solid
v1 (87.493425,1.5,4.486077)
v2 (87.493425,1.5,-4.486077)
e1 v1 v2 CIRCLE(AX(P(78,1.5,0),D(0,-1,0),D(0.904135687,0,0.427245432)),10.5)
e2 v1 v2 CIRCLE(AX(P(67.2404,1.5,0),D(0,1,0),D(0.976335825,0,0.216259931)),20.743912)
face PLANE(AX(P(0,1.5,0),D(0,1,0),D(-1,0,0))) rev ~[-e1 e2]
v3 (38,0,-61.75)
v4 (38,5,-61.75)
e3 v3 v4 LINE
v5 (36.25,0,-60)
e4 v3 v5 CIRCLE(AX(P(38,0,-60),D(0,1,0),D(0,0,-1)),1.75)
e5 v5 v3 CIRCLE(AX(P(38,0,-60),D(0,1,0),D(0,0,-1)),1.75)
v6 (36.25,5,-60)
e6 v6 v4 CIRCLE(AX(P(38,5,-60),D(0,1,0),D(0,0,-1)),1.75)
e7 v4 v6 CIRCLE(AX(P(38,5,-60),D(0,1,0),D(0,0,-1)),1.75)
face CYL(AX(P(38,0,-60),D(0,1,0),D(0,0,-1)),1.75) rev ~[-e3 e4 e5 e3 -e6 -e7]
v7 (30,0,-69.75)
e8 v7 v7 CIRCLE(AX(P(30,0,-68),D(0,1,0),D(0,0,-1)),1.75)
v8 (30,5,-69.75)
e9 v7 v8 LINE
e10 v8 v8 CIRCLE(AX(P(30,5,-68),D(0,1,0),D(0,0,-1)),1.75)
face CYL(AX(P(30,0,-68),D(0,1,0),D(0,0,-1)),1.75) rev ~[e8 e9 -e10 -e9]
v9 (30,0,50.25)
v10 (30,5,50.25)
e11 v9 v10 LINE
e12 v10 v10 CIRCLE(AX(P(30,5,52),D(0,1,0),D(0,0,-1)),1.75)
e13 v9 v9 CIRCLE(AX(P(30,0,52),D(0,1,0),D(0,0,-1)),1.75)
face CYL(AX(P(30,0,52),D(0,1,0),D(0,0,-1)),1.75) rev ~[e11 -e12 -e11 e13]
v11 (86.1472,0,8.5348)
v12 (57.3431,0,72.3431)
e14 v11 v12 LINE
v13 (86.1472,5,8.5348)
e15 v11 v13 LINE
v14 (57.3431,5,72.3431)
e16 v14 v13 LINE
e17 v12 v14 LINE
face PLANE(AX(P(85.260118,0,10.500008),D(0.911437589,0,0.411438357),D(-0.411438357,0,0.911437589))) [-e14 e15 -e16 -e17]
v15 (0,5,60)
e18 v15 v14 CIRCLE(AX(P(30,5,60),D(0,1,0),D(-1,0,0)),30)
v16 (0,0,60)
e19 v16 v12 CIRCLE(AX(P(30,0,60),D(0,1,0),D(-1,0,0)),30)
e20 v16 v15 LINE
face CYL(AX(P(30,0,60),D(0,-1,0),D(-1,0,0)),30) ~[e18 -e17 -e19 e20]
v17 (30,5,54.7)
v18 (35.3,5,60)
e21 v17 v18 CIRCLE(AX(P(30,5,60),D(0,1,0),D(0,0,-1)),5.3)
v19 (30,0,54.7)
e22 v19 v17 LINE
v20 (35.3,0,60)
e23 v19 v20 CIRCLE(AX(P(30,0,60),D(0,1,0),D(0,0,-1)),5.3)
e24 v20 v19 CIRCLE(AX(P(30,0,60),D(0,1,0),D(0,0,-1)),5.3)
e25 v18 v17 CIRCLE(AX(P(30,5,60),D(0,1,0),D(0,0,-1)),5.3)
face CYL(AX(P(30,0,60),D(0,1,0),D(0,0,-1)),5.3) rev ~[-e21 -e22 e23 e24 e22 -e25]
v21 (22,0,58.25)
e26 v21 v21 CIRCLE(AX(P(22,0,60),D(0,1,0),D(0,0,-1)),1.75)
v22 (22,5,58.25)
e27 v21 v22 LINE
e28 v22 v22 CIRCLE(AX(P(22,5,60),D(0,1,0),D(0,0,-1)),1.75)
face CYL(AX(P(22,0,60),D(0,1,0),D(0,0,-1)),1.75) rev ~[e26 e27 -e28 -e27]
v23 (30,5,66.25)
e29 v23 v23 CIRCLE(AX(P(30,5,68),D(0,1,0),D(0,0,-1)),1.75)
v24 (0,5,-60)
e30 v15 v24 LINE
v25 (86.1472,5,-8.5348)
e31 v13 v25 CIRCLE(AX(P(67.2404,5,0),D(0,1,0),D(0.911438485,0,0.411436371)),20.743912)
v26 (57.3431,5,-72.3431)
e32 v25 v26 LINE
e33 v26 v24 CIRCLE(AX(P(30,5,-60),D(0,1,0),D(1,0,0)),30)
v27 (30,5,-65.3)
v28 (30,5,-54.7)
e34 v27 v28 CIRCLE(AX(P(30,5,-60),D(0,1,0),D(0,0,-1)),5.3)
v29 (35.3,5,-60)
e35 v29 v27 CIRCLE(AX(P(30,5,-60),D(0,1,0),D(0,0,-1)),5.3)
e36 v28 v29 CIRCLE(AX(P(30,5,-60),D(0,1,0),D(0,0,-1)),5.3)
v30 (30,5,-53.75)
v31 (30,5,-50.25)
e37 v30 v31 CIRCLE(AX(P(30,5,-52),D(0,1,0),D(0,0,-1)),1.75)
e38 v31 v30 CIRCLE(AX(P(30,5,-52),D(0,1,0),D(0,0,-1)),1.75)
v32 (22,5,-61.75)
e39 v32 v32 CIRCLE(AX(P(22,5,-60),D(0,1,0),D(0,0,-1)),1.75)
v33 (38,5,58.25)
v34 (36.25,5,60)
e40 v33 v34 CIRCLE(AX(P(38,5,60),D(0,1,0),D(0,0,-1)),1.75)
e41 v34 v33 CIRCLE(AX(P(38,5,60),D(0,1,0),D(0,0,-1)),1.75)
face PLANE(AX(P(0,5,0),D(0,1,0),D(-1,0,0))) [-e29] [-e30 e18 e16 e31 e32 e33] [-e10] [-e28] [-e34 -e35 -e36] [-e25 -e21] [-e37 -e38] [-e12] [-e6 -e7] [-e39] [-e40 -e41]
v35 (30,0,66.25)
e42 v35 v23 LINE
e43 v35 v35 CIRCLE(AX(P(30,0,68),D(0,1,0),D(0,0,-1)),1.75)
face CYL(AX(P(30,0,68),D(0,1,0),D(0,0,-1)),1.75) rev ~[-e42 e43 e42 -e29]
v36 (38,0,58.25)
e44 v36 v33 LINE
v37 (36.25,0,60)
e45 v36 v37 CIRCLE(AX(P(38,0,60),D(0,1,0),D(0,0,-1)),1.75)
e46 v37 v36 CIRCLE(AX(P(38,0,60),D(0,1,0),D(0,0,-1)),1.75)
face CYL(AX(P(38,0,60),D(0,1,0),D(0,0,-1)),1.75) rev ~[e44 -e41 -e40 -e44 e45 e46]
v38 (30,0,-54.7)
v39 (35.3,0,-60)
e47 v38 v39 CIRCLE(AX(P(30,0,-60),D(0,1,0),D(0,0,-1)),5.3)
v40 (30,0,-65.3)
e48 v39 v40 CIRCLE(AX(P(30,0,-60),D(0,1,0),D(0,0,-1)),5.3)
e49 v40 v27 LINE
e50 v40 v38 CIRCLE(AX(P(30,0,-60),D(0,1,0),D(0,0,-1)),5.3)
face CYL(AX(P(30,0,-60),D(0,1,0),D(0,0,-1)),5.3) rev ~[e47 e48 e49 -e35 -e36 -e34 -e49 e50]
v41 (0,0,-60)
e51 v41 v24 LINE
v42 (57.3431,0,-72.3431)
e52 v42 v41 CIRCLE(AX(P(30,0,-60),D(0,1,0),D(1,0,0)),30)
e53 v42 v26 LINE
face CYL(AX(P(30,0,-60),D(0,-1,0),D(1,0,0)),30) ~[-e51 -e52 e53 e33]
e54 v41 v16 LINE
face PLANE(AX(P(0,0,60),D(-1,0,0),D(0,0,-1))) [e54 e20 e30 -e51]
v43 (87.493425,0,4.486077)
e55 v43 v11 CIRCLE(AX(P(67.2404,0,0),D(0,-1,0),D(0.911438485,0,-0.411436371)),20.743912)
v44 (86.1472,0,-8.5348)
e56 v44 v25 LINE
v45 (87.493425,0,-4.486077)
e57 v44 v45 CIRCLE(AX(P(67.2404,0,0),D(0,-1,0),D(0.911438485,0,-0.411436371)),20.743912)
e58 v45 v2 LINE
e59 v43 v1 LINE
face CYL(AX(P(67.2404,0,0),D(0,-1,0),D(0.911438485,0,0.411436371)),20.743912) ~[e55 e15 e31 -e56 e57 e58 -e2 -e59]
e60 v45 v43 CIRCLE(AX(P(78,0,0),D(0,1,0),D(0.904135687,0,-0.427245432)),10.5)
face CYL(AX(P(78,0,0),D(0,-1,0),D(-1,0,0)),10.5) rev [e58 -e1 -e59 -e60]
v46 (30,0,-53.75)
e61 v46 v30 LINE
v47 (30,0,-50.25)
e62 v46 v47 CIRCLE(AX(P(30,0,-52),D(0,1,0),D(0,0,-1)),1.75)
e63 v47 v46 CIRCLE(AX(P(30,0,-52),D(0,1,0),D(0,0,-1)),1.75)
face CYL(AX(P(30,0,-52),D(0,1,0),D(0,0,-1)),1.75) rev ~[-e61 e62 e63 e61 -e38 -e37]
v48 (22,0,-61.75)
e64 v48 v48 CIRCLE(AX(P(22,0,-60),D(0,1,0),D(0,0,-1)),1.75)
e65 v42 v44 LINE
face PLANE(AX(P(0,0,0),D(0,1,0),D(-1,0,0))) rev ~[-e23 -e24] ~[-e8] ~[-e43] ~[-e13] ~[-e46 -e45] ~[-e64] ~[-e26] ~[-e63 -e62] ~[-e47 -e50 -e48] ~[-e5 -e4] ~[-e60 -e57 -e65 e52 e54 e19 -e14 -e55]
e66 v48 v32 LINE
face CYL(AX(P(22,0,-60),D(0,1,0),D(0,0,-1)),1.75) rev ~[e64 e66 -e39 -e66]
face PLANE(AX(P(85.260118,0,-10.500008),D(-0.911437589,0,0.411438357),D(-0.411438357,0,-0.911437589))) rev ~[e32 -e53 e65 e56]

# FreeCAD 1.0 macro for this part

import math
import FreeCAD as App
import Part
import Sketcher
from FreeCAD import Vector

doc = App.newDocument("Part")
body = doc.addObject("PartDesign::Body", "Body")

# Sketch on XZ plane
sketch1 = body.newObject("Sketcher::SketchObject", "Sketch")
sketch1.AttachmentSupport = (doc.getObject("XZ_Plane"), [""])
sketch1.MapMode = "FlatFace"
sketch1.addGeometry([
    Part.ArcOfCircle(Part.Circle(Vector(30, 60, 0), Vector(0, 0, 1), 30), math.radians(24), math.radians(180)),  # 0
    Part.LineSegment(Vector(57, 72, 0), Vector(86, 9, 0)),  # 1
    Part.ArcOfCircle(Part.Circle(Vector(67, 0, 0), Vector(0, 0, 1), 21), math.radians(-24), math.radians(24)),  # 2
    Part.LineSegment(Vector(86, -9, 0), Vector(57, -72, 0)),  # 3
    Part.ArcOfCircle(Part.Circle(Vector(30, -60, 0), Vector(0, 0, 1), 30), math.radians(180), math.radians(336)),  # 4
    Part.LineSegment(Vector(0, -60, 0), Vector(0, 60, 0)),  # 5
], False)
sketch1.addConstraint([
    Sketcher.Constraint("Tangent", 0, 1, 1, 1),
    Sketcher.Constraint("Tangent", 1, 2, 2, 2),
    Sketcher.Constraint("Tangent", 2, 1, 3, 1),
    Sketcher.Constraint("Tangent", 3, 2, 4, 2),
    Sketcher.Constraint("Tangent", 4, 1, 5, 1),
    Sketcher.Constraint("Tangent", 5, 2, 0, 2),
    Sketcher.Constraint("Vertical", 5),
    Sketcher.Constraint("Equal", 0, 4),
    Sketcher.Constraint("Symmetric", 4, 1, 5, 2, -1, 1),
    Sketcher.Constraint("PointOnObject", 2, 3, -1),
    Sketcher.Constraint("Radius", 0, 30.0),
    Sketcher.Constraint("DistanceY", 5, 1, 5, 2, 120.0),
    Sketcher.Constraint("Radius", 2, 20.744),
    Sketcher.Constraint("DistanceY", -1, 1, 0, 1, 72.343),
])
pad1 = body.newObject("PartDesign::Pad", "Pad")
pad1.Profile = sketch1
pad1.Length = 5
pad1.Reversed = True

# Sketch on XZ plane
sketch2 = body.newObject("Sketcher::SketchObject", "Sketch001")
sketch2.AttachmentSupport = (doc.getObject("XZ_Plane"), [""])
sketch2.MapMode = "FlatFace"
sketch2.addGeometry([
    Part.Circle(Vector(30, 60, 0), Vector(0, 0, 1), 5),
    Part.Circle(Vector(30, -60, 0), Vector(0, 0, 1), 5),
], False)
sketch2.addConstraint([
    Sketcher.Constraint("Equal", 0, 1),
    Sketcher.Constraint("Symmetric", 0, 3, 1, 3, -1),
    Sketcher.Constraint("Diameter", 0, 10.6),
    Sketcher.Constraint("DistanceX", -1, 1, 0, 3, 30.0),
    Sketcher.Constraint("DistanceY", -1, 1, 0, 3, 60.0),
])
doc.recompute()
hole = body.newObject("PartDesign::Hole", "Hole")
hole.Profile = sketch2
hole.ThreadType = "None"
hole.Diameter = 10.6
hole.DepthType = "ThroughAll"

# Sketch on XZ plane
sketch3 = body.newObject("Sketcher::SketchObject", "Sketch002")
sketch3.AttachmentSupport = (doc.getObject("XZ_Plane"), [""])
sketch3.MapMode = "FlatFace"
sketch3.addGeometry([
    Part.ArcOfCircle(Part.Circle(Vector(67, 0, 0), Vector(0, 0, 1), 21), math.radians(-12), math.radians(12)),
    Part.ArcOfCircle(Part.Circle(Vector(78, 0, 0), Vector(0, 0, 1), 10), math.radians(25), math.radians(335)),
], False)
sketch3.addConstraint([
    Sketcher.Constraint("Coincident", 0, 1, 1, 2),
    Sketcher.Constraint("Coincident", 1, 1, 0, 2),
    Sketcher.Constraint("Symmetric", 0, 1, 1, 1, -1),
    Sketcher.Constraint("Radius", 1, 10.5),
    Sketcher.Constraint("DistanceX", -1, 1, 1, 3, 78.0),
    Sketcher.Constraint("Radius", 0, 20.744),
    Sketcher.Constraint("DistanceY", 0, 1, -1, 1, 4.486),
])
pocket1 = body.newObject("PartDesign::Pocket", "Pocket")
pocket1.Profile = sketch3
pocket1.Length = 1.5

# Sketch on XZ plane
sketch4 = body.newObject("Sketcher::SketchObject", "Sketch003")
sketch4.AttachmentSupport = (doc.getObject("XZ_Plane"), [""])
sketch4.MapMode = "FlatFace"
sketch4.addGeometry([
    Part.Circle(Vector(38, 60, 0), Vector(0, 0, 1), 1.8),  # 0
    Part.Circle(Vector(30, 68, 0), Vector(0, 0, 1), 1.8),  # 1
    Part.Circle(Vector(22, 60, 0), Vector(0, 0, 1), 1.8),  # 2
    Part.Circle(Vector(30, 52, 0), Vector(0, 0, 1), 1.8),  # 3
    Part.Circle(Vector(38, -60, 0), Vector(0, 0, 1), 1.8),  # 4
    Part.Circle(Vector(30, -52, 0), Vector(0, 0, 1), 1.8),  # 5
    Part.Circle(Vector(30, -68, 0), Vector(0, 0, 1), 1.8),  # 6
    Part.Circle(Vector(22, -60, 0), Vector(0, 0, 1), 1.8),  # 7
], False)
sketch4.addConstraint([
    Sketcher.Constraint("Equal", 0, 1),
    Sketcher.Constraint("Equal", 1, 2),
    Sketcher.Constraint("Equal", 2, 3),
    Sketcher.Constraint("Equal", 3, 4),
    Sketcher.Constraint("Equal", 4, 5),
    Sketcher.Constraint("Equal", 5, 6),
    Sketcher.Constraint("Equal", 6, 7),
    Sketcher.Constraint("Symmetric", 0, 3, 4, 3, -1),
    Sketcher.Constraint("Symmetric", 3, 3, 5, 3, -1),
    Sketcher.Constraint("Symmetric", 1, 3, 6, 3, -1),
    Sketcher.Constraint("Symmetric", 2, 3, 7, 3, -1),
    Sketcher.Constraint("Horizontal", 0, 3, 2, 3),
    Sketcher.Constraint("Vertical", 1, 3, 3, 3),
    Sketcher.Constraint("Diameter", 0, 3.5),
    Sketcher.Constraint("DistanceX", -1, 1, 0, 3, 38.0),
    Sketcher.Constraint("DistanceY", -1, 1, 0, 3, 60.0),
    Sketcher.Constraint("DistanceX", -1, 1, 1, 3, 30.0),
    Sketcher.Constraint("DistanceY", -1, 1, 1, 3, 68.0),
    Sketcher.Constraint("DistanceX", -1, 1, 2, 3, 22.0),
    Sketcher.Constraint("DistanceY", -1, 1, 3, 3, 52.0),
])
doc.recompute()
hole2 = body.newObject("PartDesign::Hole", "Hole001")
hole2.Profile = sketch4
hole2.ThreadType = "None"
hole2.Diameter = 3.5
hole2.DepthType = "ThroughAll"

doc.recompute()
